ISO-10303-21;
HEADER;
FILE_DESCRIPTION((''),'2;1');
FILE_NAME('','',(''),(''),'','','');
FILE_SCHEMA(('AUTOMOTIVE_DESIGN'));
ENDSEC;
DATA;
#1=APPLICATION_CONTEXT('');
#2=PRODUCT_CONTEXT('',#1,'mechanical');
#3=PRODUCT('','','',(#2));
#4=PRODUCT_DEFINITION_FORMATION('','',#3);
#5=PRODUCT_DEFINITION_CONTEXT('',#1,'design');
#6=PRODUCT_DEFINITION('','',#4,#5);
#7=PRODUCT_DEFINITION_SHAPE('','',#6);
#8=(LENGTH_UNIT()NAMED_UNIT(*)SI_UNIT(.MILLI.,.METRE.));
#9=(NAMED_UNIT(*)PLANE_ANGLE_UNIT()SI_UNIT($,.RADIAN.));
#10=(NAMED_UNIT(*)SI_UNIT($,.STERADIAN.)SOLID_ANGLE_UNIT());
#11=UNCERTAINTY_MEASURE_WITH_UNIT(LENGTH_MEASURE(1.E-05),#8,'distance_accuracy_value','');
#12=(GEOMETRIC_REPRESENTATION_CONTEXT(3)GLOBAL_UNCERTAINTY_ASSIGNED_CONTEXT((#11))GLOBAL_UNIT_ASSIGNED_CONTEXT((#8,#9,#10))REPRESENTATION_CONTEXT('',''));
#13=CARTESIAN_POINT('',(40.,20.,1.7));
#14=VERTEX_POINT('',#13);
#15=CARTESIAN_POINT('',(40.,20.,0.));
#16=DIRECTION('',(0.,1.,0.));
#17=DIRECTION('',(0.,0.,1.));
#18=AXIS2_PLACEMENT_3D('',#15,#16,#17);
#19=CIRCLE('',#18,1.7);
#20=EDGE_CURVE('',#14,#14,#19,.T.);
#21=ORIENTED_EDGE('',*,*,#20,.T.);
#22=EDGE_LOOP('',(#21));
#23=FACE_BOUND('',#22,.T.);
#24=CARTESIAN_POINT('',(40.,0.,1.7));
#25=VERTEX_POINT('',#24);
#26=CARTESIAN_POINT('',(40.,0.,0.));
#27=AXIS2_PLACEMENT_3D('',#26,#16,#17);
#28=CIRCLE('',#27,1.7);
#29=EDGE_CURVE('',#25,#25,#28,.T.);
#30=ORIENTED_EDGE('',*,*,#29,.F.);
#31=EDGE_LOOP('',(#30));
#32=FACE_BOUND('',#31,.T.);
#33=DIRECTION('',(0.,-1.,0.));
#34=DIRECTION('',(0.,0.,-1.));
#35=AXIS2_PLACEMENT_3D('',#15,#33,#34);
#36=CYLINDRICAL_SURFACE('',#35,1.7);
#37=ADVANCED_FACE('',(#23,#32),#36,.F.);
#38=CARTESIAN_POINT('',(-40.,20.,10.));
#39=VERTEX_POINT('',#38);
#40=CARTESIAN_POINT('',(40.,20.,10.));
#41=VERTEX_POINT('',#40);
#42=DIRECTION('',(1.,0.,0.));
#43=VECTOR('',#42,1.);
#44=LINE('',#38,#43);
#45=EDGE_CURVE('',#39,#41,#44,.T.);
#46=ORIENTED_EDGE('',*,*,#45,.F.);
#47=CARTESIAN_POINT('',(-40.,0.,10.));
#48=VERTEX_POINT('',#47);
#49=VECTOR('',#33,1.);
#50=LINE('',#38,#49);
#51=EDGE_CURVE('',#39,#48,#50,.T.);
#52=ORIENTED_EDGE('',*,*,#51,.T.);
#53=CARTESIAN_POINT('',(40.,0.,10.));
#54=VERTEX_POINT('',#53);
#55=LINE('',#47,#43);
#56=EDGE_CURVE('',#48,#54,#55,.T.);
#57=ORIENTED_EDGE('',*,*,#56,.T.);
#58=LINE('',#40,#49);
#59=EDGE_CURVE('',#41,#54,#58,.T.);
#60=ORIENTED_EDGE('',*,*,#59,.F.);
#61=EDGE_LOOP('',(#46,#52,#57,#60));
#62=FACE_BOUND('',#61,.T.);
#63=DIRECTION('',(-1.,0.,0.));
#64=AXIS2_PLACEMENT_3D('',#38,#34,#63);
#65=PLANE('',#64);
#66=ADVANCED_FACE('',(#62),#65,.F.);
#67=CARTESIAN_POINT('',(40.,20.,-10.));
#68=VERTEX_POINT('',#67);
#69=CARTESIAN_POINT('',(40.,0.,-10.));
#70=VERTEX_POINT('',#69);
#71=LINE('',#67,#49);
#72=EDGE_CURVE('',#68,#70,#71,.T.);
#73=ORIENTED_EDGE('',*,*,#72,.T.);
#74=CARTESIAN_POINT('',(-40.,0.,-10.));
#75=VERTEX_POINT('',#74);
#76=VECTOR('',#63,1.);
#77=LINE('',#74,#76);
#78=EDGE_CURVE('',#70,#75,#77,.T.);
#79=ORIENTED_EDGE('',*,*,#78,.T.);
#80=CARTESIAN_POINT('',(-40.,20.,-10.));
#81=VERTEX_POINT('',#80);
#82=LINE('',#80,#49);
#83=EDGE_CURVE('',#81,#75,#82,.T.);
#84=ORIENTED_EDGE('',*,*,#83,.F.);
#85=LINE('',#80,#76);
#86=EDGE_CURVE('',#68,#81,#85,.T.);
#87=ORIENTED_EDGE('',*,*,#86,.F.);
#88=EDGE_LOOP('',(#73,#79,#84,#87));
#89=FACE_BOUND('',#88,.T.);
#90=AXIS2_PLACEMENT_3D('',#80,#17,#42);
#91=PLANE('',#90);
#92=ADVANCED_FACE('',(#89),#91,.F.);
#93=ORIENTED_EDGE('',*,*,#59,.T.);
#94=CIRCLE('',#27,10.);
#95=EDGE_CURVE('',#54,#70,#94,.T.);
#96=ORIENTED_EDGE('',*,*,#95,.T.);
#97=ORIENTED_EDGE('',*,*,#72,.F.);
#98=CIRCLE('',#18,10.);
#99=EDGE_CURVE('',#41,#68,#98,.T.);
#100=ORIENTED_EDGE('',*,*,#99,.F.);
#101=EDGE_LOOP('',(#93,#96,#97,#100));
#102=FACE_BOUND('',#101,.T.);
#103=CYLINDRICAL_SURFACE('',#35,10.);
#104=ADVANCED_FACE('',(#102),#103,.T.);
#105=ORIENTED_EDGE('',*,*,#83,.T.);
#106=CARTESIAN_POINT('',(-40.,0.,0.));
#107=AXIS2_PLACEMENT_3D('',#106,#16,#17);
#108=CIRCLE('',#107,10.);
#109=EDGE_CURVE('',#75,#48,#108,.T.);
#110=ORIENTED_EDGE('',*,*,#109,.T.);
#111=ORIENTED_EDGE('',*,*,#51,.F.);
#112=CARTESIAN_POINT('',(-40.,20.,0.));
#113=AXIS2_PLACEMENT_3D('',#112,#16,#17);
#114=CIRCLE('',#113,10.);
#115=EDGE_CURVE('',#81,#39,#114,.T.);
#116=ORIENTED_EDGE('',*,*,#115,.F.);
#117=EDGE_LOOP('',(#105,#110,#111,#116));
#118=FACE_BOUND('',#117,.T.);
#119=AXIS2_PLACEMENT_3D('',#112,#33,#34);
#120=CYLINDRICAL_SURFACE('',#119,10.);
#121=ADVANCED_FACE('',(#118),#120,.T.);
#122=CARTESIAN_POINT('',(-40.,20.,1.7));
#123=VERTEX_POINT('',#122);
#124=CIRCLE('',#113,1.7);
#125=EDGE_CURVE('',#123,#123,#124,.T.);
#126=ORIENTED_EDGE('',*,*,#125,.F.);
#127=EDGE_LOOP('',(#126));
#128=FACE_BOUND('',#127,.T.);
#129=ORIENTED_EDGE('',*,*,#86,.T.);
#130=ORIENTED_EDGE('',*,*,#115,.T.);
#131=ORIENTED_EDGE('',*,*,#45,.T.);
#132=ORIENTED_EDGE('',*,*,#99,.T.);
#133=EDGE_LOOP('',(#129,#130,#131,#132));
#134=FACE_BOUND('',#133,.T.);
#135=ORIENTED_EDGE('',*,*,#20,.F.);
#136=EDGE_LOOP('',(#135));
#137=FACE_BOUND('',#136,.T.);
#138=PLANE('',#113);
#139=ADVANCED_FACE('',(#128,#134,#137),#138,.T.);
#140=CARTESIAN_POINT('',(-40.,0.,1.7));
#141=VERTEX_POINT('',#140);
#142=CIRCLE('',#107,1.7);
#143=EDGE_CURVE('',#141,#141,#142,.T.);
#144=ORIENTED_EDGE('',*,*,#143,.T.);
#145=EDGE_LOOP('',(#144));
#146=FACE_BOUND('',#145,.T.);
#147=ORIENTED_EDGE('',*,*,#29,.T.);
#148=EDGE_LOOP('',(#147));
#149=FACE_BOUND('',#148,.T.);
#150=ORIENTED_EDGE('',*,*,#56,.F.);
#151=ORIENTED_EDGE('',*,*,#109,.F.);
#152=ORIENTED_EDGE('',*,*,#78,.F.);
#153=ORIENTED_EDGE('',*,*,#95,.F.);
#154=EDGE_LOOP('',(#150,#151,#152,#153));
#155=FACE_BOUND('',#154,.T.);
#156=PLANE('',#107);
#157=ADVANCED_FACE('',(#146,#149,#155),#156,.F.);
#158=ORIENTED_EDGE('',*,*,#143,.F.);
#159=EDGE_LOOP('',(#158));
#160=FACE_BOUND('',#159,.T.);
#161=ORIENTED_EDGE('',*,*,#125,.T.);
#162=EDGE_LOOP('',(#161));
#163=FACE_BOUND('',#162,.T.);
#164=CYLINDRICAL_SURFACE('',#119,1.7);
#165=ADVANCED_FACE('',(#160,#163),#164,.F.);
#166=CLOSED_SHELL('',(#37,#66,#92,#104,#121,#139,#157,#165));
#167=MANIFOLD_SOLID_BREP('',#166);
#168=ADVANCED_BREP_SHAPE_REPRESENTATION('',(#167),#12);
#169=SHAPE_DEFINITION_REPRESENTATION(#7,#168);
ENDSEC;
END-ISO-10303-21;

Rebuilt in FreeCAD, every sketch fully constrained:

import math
import FreeCAD as App
import Part
import Sketcher
from FreeCAD import Vector
Q = App.Units.Quantity

doc = App.newDocument("Part")
body = doc.addObject("PartDesign::Body", "Body")

# Sketch on XZ plane
sketch1 = body.newObject("Sketcher::SketchObject", "Sketch")
sketch1.AttachmentSupport = (doc.getObject("XZ_Plane"), [""])
sketch1.MapMode = "FlatFace"
sketch1.addGeometry([
    Part.LineSegment(Vector(40, -10, 0), Vector(-40, -10, 0)),  # 0
    Part.ArcOfCircle(Part.Circle(Vector(-40, 0, 0), Vector(0, 0, 1), 10), math.radians(90), math.radians(270)),  # 1
    Part.LineSegment(Vector(-40, 10, 0), Vector(40, 10, 0)),  # 2
    Part.ArcOfCircle(Part.Circle(Vector(40, 0, 0), Vector(0, 0, 1), 10), math.radians(-90), math.radians(90)),  # 3
    Part.Circle(Vector(40, 0, 0), Vector(0, 0, 1), 1.7),  # 4
    Part.Circle(Vector(-40, 0, 0), Vector(0, 0, 1), 1.7),  # 5
], False)
sketch1.addConstraint([
    Sketcher.Constraint("Tangent", 0, 2, 1, 2),
    Sketcher.Constraint("Tangent", 1, 1, 2, 1),
    Sketcher.Constraint("Tangent", 2, 2, 3, 2),
    Sketcher.Constraint("Tangent", 3, 1, 0, 1),
    Sketcher.Constraint("Horizontal", 0),
    Sketcher.Constraint("Horizontal", 2),
    Sketcher.Constraint("Coincident", 4, 3, 3, 3),
    Sketcher.Constraint("Coincident", 5, 3, 1, 3),
    Sketcher.Constraint("Equal", 4, 5),
    Sketcher.Constraint("Symmetric", 1, 3, 3, 3, -1, 1),
    Sketcher.Constraint("Radius", 1, Q("10 mm")),
    Sketcher.Constraint("Diameter", 4, Q("3.4 mm")),
    Sketcher.Constraint("DistanceX", 0, 2, 0, 1, Q("80 mm")),
])
pad1 = body.newObject("PartDesign::Pad", "Pad")
pad1.Profile = sketch1
pad1.Length = 20
pad1.Reversed = True

doc.recompute()
